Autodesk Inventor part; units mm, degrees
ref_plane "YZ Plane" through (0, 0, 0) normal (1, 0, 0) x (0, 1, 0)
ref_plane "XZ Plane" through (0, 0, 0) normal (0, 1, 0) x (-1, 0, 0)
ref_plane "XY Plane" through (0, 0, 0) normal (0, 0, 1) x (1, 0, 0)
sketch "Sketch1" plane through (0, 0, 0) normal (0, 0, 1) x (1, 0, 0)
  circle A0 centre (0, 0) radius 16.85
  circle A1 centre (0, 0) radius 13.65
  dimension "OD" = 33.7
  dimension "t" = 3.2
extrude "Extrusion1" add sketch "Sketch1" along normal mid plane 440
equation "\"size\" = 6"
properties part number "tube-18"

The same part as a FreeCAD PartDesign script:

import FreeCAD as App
import Part
import Sketcher

V = App.Vector

doc = App.newDocument("Part")
body = doc.addObject("PartDesign::Body", "Body")

# Sketch on XY plane
sketch1 = body.newObject("Sketcher::SketchObject", "Sketch")
sketch1.AttachmentSupport = (doc.getObject("XY_Plane"), [""])
sketch1.MapMode = "FlatFace"
sketch1.addGeometry(Part.Circle(V(0, 0, 0), V(0, 0, 1), 17), False)
sketch1.addGeometry(Part.Circle(V(0, 0, 0), V(0, 0, 1), 14), False)
sketch1.addConstraint(Sketcher.Constraint("Coincident", 0, 3, -1, 1))
sketch1.addConstraint(Sketcher.Constraint("Coincident", 1, 3, -1, 1))
sketch1.addConstraint(Sketcher.Constraint("Diameter", 0, 33.7))
sketch1.addConstraint(Sketcher.Constraint("Diameter", 1, 27.3))
pad1 = body.newObject("PartDesign::Pad", "Pad")
pad1.Profile = sketch1
pad1.Length = 440
pad1.Midplane = True

doc.recompute()
